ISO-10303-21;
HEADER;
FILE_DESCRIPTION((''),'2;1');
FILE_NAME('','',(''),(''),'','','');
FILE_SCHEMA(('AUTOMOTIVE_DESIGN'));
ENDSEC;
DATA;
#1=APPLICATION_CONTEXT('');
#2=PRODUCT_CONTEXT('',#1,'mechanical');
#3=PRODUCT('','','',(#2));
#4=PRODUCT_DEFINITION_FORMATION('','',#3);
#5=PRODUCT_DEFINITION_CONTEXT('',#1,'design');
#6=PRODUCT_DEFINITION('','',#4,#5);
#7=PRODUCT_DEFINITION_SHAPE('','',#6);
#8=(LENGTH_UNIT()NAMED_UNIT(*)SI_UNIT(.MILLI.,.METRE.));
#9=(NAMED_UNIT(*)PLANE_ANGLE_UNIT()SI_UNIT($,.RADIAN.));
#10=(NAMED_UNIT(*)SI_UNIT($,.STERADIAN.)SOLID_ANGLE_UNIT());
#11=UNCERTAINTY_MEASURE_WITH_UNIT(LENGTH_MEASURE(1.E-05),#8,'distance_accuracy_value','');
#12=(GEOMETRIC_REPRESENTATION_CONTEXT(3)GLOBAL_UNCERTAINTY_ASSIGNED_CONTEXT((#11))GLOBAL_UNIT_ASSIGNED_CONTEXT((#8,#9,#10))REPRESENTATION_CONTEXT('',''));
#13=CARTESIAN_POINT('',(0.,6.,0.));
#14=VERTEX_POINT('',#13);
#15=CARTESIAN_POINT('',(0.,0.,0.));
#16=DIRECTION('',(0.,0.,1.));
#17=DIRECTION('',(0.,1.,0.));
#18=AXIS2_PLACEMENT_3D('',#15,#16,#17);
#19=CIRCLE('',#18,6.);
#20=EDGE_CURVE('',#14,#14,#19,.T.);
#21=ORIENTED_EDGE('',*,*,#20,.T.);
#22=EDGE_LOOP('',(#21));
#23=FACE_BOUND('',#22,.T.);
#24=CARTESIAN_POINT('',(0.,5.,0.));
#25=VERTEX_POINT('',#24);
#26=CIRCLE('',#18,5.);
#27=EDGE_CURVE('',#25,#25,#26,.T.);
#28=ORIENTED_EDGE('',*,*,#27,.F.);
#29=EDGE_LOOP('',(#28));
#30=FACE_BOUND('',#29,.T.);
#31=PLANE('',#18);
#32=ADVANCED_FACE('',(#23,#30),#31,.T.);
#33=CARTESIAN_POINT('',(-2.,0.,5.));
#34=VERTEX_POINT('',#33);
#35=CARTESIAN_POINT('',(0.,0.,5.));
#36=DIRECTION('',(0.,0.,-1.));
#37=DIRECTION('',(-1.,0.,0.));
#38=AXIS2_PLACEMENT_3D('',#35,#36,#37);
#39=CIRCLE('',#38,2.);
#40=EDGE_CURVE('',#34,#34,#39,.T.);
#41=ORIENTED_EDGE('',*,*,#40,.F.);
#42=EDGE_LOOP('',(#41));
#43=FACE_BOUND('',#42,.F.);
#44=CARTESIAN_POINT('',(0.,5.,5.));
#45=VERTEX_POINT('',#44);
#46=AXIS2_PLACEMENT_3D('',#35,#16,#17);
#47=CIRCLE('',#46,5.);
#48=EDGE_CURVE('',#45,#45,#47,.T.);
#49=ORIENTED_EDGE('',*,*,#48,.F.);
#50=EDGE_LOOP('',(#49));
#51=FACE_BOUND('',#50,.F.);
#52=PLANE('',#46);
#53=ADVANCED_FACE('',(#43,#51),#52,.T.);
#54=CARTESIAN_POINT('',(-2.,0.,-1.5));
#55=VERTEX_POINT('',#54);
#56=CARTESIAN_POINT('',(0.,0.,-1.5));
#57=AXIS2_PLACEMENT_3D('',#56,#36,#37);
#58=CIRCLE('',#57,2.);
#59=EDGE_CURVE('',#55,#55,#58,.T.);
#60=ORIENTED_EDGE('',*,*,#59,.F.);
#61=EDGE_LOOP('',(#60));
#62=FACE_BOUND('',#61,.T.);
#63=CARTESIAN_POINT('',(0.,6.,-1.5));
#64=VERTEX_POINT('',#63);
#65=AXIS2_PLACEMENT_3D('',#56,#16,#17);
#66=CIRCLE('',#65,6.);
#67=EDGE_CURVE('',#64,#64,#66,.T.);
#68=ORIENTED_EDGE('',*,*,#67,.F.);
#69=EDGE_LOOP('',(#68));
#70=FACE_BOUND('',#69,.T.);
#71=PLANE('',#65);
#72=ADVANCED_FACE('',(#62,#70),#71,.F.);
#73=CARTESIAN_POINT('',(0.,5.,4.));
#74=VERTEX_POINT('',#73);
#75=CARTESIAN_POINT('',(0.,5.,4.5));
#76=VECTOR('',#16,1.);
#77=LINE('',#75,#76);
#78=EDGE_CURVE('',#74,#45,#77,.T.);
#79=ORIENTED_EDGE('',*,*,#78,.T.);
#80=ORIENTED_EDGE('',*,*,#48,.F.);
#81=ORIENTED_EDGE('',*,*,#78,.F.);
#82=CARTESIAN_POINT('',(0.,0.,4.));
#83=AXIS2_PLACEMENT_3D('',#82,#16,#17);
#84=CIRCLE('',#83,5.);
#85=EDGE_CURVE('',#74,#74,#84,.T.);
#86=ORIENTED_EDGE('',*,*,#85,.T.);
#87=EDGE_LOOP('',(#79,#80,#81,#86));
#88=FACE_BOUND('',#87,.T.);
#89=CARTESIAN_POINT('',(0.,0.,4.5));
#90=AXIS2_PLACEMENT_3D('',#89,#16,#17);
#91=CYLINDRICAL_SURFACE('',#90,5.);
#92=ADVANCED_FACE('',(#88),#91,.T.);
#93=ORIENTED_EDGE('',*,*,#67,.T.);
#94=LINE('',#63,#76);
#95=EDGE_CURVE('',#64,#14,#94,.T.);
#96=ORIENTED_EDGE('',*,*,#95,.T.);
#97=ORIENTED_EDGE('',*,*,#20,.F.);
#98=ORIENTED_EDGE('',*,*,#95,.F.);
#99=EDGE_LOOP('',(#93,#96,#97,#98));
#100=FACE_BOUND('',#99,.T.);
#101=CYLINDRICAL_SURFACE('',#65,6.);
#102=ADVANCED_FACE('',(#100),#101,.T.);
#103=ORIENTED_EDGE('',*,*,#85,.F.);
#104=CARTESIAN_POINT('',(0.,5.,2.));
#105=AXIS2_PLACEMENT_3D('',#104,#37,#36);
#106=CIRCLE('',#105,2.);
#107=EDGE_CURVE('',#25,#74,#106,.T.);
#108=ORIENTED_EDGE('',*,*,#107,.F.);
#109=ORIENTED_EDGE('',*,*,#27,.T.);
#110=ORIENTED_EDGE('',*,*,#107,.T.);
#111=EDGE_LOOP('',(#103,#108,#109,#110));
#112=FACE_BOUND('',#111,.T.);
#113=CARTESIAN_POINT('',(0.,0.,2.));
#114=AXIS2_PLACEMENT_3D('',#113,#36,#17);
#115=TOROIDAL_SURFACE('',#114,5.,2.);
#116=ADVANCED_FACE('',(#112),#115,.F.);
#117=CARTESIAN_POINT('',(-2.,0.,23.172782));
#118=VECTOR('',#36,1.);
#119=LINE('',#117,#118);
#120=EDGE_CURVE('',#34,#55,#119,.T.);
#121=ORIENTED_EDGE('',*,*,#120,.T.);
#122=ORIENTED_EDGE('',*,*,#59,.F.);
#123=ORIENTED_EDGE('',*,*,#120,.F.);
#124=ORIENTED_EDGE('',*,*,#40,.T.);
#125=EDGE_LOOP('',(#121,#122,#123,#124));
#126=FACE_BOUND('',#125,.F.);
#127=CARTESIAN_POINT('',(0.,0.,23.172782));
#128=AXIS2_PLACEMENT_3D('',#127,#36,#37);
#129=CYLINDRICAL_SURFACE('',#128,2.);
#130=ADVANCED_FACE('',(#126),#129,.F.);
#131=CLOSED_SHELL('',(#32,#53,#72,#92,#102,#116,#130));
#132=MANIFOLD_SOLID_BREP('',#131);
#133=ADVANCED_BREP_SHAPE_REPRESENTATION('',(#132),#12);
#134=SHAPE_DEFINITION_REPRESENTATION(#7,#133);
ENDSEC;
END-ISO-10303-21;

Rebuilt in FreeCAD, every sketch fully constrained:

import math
import FreeCAD as App
import Part
import Sketcher

doc = App.newDocument("Part")
body = doc.addObject("PartDesign::Body", "Body")

sketch1 = body.newObject("Sketcher::SketchObject", "Sketch")
sketch1.AttachmentSupport = (doc.getObject("YZ_Plane"), [""])
sketch1.MapMode = "FlatFace"
sketch1.addGeometry([
    Part.LineSegment(App.Vector(0, -1.5, 0), App.Vector(6, -1.5, 0)),
    Part.LineSegment(App.Vector(6, -1.5, 0), App.Vector(6, 0, 0)),
    Part.LineSegment(App.Vector(6, 0, 0), App.Vector(5, 0, 0)),
    Part.ArcOfCircle(Part.Circle(App.Vector(5, 2, 0), App.Vector(0, 0, 1), 2), math.radians(90), math.radians(270)),
    Part.LineSegment(App.Vector(5, 4, 0), App.Vector(5, 5, 0)),
    Part.LineSegment(App.Vector(5, 5, 0), App.Vector(0, 5, 0)),
    Part.LineSegment(App.Vector(0, 5, 0), App.Vector(0, -1.5, 0)),
], False)
sketch1.addConstraint([
    Sketcher.Constraint("Coincident", 0, 2, 1, 1),
    Sketcher.Constraint("Coincident", 1, 2, 2, 1),
    Sketcher.Constraint("Tangent", 2, 2, 3, 2),
    Sketcher.Constraint("Coincident", 3, 1, 4, 1),
    Sketcher.Constraint("Coincident", 4, 2, 5, 1),
    Sketcher.Constraint("Coincident", 5, 2, 6, 1),
    Sketcher.Constraint("Coincident", 6, 2, 0, 1),
    Sketcher.Constraint("Horizontal", 0),
    Sketcher.Constraint("Vertical", 1),
    Sketcher.Constraint("Horizontal", 2),
    Sketcher.Constraint("Vertical", 4),
    Sketcher.Constraint("Horizontal", 5),
    Sketcher.Constraint("Vertical", 6),
    Sketcher.Constraint("PointOnObject", 1, 2, -1),
    Sketcher.Constraint("PointOnObject", 5, 2, -2),
    Sketcher.Constraint("Vertical", 2, 2, 3, 1),
    Sketcher.Constraint("Equal", 2, 4),
    Sketcher.Constraint("Radius", 3, 2.0),
    Sketcher.Constraint("DistanceX", 0, 1, 0, 2, 6.0),
    Sketcher.Constraint("DistanceX", 2, 2, 2, 1, 1.0),
    Sketcher.Constraint("DistanceY", 1, 1, 1, 2, 1.5),
])
revolution = body.newObject("PartDesign::Revolution", "Revolution")
revolution.Profile = sketch1
revolution.ReferenceAxis = (sketch1, ["V_Axis"])
revolution.Angle = 360

sketch2 = body.newObject("Sketcher::SketchObject", "Sketch001")
sketch2.AttachmentSupport = (doc.getObject("XY_Plane"), [""])
sketch2.MapMode = "FlatFace"
sketch2.AttachmentOffset = App.Placement(App.Vector(0, 0, 5), App.Rotation())
sketch2.addGeometry(Part.Circle(App.Vector(0, 0, 0), App.Vector(0, 0, 1), 2), False)
sketch2.addConstraint([
    Sketcher.Constraint("Coincident", 0, 3, -1, 1),
    Sketcher.Constraint("Diameter", 0, 4.0),
])
doc.recompute()
hole = body.newObject("PartDesign::Hole", "Hole")
hole.Profile = sketch2
hole.ThreadType = "None"
hole.Diameter = 4
hole.DepthType = "ThroughAll"

doc.recompute()
